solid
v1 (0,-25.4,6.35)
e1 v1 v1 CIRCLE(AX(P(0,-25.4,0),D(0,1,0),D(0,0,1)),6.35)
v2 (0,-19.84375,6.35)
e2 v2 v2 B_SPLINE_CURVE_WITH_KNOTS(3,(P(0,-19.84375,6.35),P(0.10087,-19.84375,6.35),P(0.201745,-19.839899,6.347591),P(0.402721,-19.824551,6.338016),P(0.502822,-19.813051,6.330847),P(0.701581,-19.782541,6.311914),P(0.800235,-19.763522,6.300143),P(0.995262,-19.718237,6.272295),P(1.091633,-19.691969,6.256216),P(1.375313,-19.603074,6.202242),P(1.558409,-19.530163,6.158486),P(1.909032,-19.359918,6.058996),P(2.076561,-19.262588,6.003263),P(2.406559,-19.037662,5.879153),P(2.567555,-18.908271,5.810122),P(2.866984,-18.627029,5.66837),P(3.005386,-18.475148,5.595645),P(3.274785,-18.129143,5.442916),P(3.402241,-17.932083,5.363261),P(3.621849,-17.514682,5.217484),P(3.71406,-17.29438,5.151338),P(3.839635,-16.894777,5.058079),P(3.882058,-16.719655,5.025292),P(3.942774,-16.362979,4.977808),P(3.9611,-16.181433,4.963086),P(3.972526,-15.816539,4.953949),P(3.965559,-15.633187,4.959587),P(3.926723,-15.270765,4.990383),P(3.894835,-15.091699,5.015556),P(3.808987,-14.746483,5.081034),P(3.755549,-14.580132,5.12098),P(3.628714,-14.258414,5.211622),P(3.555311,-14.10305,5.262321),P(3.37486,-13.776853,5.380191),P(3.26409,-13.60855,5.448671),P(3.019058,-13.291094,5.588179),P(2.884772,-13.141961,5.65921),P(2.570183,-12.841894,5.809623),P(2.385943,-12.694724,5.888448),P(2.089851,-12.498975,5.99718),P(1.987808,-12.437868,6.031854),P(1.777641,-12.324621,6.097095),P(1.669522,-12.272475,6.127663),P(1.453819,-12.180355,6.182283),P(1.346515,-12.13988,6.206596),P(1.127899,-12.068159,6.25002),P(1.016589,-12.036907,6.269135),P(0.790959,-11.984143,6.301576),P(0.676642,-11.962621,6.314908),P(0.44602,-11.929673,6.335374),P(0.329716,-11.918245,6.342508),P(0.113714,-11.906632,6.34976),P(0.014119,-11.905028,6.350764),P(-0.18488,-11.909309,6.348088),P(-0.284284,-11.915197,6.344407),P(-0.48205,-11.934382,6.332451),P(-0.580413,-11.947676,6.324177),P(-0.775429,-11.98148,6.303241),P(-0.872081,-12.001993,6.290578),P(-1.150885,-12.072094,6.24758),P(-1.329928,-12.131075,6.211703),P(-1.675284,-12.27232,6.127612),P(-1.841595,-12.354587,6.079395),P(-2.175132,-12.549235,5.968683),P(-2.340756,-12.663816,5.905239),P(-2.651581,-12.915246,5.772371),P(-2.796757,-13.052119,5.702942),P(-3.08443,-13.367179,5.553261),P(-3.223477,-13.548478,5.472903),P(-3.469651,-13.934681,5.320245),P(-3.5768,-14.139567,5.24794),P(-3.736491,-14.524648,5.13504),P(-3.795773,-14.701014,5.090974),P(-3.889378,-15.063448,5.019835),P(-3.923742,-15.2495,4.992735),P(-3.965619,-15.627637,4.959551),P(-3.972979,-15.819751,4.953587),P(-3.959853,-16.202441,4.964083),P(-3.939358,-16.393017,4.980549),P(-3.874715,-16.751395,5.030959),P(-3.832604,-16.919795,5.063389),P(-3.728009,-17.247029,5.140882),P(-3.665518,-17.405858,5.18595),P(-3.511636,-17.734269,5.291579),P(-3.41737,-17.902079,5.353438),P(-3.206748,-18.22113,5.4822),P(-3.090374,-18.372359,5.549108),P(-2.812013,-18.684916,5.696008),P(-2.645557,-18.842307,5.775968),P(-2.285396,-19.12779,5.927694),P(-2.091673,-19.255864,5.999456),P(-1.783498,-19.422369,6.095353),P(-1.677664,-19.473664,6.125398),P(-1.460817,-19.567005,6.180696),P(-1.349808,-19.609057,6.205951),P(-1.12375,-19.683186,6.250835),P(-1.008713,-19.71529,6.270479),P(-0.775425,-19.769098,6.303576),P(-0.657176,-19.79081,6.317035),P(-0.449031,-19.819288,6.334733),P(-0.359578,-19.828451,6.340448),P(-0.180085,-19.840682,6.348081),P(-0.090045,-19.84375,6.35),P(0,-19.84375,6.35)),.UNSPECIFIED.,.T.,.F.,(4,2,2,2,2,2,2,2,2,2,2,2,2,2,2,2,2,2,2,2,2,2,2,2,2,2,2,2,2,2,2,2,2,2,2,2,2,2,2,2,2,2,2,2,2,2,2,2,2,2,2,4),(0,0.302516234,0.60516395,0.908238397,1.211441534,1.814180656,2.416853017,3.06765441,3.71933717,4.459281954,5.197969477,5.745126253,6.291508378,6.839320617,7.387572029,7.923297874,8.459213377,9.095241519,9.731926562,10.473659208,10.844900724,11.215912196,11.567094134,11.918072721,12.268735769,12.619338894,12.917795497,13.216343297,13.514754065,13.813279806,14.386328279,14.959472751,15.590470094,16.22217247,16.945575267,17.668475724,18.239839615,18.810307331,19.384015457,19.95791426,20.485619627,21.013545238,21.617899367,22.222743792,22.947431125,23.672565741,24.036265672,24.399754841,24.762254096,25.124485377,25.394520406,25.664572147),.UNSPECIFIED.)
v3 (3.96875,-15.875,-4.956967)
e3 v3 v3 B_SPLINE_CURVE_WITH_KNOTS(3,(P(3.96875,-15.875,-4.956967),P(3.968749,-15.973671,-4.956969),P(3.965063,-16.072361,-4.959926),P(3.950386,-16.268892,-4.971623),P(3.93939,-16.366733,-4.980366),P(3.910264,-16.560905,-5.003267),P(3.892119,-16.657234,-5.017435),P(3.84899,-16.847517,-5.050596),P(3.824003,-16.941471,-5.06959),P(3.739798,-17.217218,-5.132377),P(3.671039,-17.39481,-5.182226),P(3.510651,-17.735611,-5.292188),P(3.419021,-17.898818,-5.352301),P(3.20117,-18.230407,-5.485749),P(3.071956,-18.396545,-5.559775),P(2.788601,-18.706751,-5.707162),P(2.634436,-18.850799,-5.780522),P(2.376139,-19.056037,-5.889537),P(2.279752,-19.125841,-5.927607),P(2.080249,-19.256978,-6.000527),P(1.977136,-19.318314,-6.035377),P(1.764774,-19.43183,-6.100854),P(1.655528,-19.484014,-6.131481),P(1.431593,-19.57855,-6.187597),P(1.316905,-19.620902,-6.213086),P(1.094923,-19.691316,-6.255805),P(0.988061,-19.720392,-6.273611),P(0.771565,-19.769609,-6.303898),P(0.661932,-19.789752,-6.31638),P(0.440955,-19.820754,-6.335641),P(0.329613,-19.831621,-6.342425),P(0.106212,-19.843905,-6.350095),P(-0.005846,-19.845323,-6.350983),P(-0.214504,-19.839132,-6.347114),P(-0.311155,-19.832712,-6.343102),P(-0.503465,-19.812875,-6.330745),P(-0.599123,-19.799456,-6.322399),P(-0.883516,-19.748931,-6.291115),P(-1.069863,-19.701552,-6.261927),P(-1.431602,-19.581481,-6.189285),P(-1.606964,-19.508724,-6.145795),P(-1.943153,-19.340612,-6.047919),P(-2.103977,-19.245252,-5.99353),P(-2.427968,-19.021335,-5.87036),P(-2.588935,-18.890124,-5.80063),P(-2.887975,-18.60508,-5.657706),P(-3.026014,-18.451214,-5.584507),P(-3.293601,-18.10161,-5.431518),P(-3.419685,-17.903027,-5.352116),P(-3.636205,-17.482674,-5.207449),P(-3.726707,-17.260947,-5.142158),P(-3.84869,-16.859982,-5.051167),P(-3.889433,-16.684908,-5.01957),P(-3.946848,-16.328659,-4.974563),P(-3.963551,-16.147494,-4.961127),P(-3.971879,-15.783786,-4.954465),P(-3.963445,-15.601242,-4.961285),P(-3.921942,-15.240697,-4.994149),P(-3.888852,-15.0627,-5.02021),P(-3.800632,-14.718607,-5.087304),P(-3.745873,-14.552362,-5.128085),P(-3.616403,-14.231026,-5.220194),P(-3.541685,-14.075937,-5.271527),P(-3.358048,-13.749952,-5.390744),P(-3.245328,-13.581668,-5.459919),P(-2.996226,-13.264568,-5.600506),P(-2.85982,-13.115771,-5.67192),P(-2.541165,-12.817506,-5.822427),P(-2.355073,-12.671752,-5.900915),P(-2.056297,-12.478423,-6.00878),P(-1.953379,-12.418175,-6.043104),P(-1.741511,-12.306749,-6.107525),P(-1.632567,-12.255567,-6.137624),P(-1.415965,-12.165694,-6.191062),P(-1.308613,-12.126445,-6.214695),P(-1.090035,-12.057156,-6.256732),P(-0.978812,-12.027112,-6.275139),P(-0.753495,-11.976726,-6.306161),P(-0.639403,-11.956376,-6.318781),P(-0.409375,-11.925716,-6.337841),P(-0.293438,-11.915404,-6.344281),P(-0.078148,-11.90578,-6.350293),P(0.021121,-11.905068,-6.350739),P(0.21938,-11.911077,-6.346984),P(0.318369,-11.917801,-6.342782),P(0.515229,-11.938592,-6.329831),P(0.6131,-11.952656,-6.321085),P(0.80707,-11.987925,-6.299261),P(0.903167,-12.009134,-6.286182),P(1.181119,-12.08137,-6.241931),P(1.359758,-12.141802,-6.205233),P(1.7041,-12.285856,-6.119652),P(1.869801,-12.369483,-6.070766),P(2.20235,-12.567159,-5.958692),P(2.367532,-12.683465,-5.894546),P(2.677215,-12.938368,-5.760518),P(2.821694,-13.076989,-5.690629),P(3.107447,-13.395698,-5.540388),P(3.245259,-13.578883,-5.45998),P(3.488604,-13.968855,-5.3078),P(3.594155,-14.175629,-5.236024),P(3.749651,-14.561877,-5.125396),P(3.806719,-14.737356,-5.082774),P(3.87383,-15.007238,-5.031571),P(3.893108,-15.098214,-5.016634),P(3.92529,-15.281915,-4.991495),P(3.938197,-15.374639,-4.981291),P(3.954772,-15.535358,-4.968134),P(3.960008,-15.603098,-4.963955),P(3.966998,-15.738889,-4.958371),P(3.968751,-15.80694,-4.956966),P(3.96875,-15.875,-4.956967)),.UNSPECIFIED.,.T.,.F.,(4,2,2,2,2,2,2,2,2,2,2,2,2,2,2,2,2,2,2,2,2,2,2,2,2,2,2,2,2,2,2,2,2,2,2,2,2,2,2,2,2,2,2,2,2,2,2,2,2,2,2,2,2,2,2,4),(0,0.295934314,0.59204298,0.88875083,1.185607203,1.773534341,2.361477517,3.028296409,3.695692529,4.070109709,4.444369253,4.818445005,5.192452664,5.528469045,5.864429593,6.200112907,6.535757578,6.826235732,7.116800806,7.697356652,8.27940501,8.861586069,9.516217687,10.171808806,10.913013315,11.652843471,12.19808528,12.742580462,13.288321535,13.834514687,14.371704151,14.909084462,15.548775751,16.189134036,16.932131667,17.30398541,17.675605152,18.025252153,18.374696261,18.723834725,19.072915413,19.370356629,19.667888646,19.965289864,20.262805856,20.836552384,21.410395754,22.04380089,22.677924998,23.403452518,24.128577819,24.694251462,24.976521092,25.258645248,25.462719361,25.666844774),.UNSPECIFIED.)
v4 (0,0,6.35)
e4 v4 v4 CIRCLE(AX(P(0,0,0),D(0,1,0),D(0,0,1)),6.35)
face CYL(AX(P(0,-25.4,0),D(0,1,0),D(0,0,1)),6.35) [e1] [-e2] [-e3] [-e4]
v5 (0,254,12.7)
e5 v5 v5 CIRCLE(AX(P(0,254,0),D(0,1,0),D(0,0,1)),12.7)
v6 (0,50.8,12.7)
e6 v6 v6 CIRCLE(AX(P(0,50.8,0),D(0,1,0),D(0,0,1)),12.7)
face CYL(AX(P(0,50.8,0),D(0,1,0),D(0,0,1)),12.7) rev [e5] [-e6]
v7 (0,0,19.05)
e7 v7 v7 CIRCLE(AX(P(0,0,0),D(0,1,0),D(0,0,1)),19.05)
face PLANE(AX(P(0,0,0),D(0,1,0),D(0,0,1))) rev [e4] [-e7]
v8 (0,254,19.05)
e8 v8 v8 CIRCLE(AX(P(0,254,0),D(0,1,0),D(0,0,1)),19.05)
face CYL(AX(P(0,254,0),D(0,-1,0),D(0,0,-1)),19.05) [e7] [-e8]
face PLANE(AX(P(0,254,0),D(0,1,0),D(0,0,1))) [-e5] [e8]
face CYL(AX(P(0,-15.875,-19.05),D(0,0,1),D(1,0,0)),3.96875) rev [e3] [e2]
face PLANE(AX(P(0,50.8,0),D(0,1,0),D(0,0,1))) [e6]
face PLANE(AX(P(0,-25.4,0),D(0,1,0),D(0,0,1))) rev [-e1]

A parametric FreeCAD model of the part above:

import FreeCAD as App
import Part
import Sketcher
from FreeCAD import Vector
Q = App.Units.Quantity

doc = App.newDocument("Part")
body = doc.addObject("PartDesign::Body", "Body")

sketch1 = doc.addObject("Sketcher::SketchObject", "Sketch")
body.addObject(sketch1)
sketch1.AttachmentSupport = (doc.XZ_Plane, [""])
sketch1.MapMode = "FlatFace"
sketch1.addGeometry(Part.Circle(Vector(0, 0, 0), Vector(0, 0, 1), 19), False)
sketch1.addConstraint([
    Sketcher.Constraint("Coincident", 0, 3, -1, 1),
    Sketcher.Constraint("Diameter", 0, Q("1.5 in")),
])
pad1 = doc.addObject("PartDesign::Pad", "Pad")
body.addObject(pad1)
pad1.Profile = sketch1
pad1.Length = Q("10 in")
pad1.Reversed = True

sketch2 = doc.addObject("Sketcher::SketchObject", "Sketch001")
body.addObject(sketch2)
sketch2.AttachmentSupport = (doc.XZ_Plane, [""])
sketch2.MapMode = "FlatFace"
sketch2.addGeometry(Part.Circle(Vector(0, 0, 0), Vector(0, 0, 1), 6), False)
sketch2.addConstraint([
    Sketcher.Constraint("Coincident", 0, 3, -1, 1),
    Sketcher.Constraint("Diameter", 0, Q("0.5 in")),
])
pad2 = doc.addObject("PartDesign::Pad", "Pad001")
body.addObject(pad2)
pad2.Profile = sketch2
pad2.Length = Q("1 in")

sketch3 = doc.addObject("Sketcher::SketchObject", "Sketch002")
body.addObject(sketch3)
sketch3.AttachmentSupport = (doc.XZ_Plane, [""])
sketch3.MapMode = "FlatFace"
sketch3.AttachmentOffset = App.Placement(Vector(0, 0, -10 * 25.4), App.Rotation())
sketch3.addGeometry(Part.Circle(Vector(0, 0, 0), Vector(0, 0, 1), 13), False)
sketch3.addConstraint([
    Sketcher.Constraint("Coincident", 0, 3, -1, 1),
    Sketcher.Constraint("Diameter", 0, Q("1 in")),
])
pocket1 = doc.addObject("PartDesign::Pocket", "Pocket")
body.addObject(pocket1)
pocket1.Profile = sketch3
pocket1.Length = Q("8 in")
pocket1.Reversed = True

sketch4 = doc.addObject("Sketcher::SketchObject", "Sketch003")
body.addObject(sketch4)
sketch4.AttachmentSupport = (doc.XY_Plane, [""])
sketch4.MapMode = "FlatFace"
sketch4.addGeometry(Part.Circle(Vector(0, -15.9, 0), Vector(0, 0, 1), 4), False)
sketch4.addConstraint([
    Sketcher.Constraint("PointOnObject", 0, 3, -2),
    Sketcher.Constraint("Diameter", 0, Q("0.3125 in")),
    Sketcher.Constraint("DistanceY", 0, 3, -1, 1, Q("0.625 in")),
])
pocket2 = doc.addObject("PartDesign::Pocket", "Pocket001")
body.addObject(pocket2)
pocket2.Profile = sketch4
pocket2.Type = "ThroughAll"
pocket2.Midplane = True

doc.recompute()
